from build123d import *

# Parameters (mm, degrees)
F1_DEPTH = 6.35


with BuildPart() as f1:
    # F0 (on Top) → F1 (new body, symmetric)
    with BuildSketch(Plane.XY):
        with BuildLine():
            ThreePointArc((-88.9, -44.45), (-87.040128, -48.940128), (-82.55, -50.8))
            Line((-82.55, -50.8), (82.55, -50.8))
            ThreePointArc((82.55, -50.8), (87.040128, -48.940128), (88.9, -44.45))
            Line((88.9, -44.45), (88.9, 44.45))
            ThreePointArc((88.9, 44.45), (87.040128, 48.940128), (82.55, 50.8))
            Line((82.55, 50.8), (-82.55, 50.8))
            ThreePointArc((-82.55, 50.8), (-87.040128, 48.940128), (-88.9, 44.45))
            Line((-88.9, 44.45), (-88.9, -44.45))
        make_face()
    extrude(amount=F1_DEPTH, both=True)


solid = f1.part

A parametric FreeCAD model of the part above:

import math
import FreeCAD as App
import Part
import Sketcher
Q = App.Units.Quantity

doc = App.newDocument("Part")
params = doc.addObject("Spreadsheet::Sheet", "Params")
for row, (alias, value) in enumerate([
    ("sketch1_radius", "0.25 in"),
    ("sketch1_width", "6.5 in"),
    ("sketch1_height", "3.5 in"),
    ("pad1_length", "0.5 in"),
], start=1):
    params.set(f"A{row}", alias)
    params.set(f"B{row}", "=" + value)
    params.setAlias(f"B{row}", alias)

body = doc.addObject("PartDesign::Body", "Body")

# Sketch on XY plane
sketch1 = body.newObject("Sketcher::SketchObject", "Sketch")
sketch1.AttachmentSupport = (doc.getObject("XY_Plane"), [""])
sketch1.MapMode = "FlatFace"
sketch1.addGeometry(Part.ArcOfCircle(Part.Circle(App.Vector(-82.55, -44.45, 0), App.Vector(0, 0, 1), 6.35), math.radians(-179.999998), math.radians(-90.000002)), False)
sketch1.addGeometry(Part.LineSegment(App.Vector(-82.55, -50.8, 0), App.Vector(82.55, -50.8, 0)), False)
sketch1.addGeometry(Part.ArcOfCircle(Part.Circle(App.Vector(82.55, -44.45, 0), App.Vector(0, 0, 1), 6.35), math.radians(-89.999998), math.radians(-0.000002)), False)
sketch1.addGeometry(Part.LineSegment(App.Vector(88.9, -44.45, 0), App.Vector(88.9, 44.45, 0)), False)
sketch1.addGeometry(Part.ArcOfCircle(Part.Circle(App.Vector(82.55, 44.45, 0), App.Vector(0, 0, 1), 6.35), math.radians(0.000002), math.radians(89.999998)), False)
sketch1.addGeometry(Part.LineSegment(App.Vector(82.55, 50.8, 0), App.Vector(-82.55, 50.8, 0)), False)
sketch1.addGeometry(Part.ArcOfCircle(Part.Circle(App.Vector(-82.55, 44.45, 0), App.Vector(0, 0, 1), 6.35), math.radians(90.000002), math.radians(179.999998)), False)
sketch1.addGeometry(Part.LineSegment(App.Vector(-88.9, 44.45, 0), App.Vector(-88.9, -44.45, 0)), False)
sketch1.addConstraint(Sketcher.Constraint("Tangent", 0, 2, 1, 1))
sketch1.addConstraint(Sketcher.Constraint("Tangent", 1, 2, 2, 1))
sketch1.addConstraint(Sketcher.Constraint("Tangent", 2, 2, 3, 1))
sketch1.addConstraint(Sketcher.Constraint("Tangent", 3, 2, 4, 1))
sketch1.addConstraint(Sketcher.Constraint("Tangent", 4, 2, 5, 1))
sketch1.addConstraint(Sketcher.Constraint("Tangent", 5, 2, 6, 1))
sketch1.addConstraint(Sketcher.Constraint("Tangent", 6, 2, 7, 1))
sketch1.addConstraint(Sketcher.Constraint("Tangent", 7, 2, 0, 1))
sketch1.addConstraint(Sketcher.Constraint("Horizontal", 1))
sketch1.addConstraint(Sketcher.Constraint("Vertical", 3))
sketch1.addConstraint(Sketcher.Constraint("Horizontal", 5))
sketch1.addConstraint(Sketcher.Constraint("Vertical", 7))
sketch1.addConstraint(Sketcher.Constraint("Equal", 0, 2))
sketch1.addConstraint(Sketcher.Constraint("Equal", 2, 4))
sketch1.addConstraint(Sketcher.Constraint("Equal", 4, 6))
sketch1.addConstraint(Sketcher.Constraint("Symmetric", 0, 3, 4, 3, -1, 1))
sketch1.addConstraint(Sketcher.Constraint("Radius", 0, Q("0.25 in")))
sketch1.addConstraint(Sketcher.Constraint("DistanceX", 1, 1, 1, 2, Q("6.5 in")))
sketch1.addConstraint(Sketcher.Constraint("DistanceY", 3, 1, 3, 2, Q("3.5 in")))
sketch1.setExpression("Constraints[16]", "Params.sketch1_radius")
sketch1.setExpression("Constraints[17]", "Params.sketch1_width")
sketch1.setExpression("Constraints[18]", "Params.sketch1_height")
pad1 = body.newObject("PartDesign::Pad", "Pad")
pad1.Profile = sketch1
pad1.setExpression("Length", "Params.pad1_length")
pad1.Midplane = True

doc.recompute()
